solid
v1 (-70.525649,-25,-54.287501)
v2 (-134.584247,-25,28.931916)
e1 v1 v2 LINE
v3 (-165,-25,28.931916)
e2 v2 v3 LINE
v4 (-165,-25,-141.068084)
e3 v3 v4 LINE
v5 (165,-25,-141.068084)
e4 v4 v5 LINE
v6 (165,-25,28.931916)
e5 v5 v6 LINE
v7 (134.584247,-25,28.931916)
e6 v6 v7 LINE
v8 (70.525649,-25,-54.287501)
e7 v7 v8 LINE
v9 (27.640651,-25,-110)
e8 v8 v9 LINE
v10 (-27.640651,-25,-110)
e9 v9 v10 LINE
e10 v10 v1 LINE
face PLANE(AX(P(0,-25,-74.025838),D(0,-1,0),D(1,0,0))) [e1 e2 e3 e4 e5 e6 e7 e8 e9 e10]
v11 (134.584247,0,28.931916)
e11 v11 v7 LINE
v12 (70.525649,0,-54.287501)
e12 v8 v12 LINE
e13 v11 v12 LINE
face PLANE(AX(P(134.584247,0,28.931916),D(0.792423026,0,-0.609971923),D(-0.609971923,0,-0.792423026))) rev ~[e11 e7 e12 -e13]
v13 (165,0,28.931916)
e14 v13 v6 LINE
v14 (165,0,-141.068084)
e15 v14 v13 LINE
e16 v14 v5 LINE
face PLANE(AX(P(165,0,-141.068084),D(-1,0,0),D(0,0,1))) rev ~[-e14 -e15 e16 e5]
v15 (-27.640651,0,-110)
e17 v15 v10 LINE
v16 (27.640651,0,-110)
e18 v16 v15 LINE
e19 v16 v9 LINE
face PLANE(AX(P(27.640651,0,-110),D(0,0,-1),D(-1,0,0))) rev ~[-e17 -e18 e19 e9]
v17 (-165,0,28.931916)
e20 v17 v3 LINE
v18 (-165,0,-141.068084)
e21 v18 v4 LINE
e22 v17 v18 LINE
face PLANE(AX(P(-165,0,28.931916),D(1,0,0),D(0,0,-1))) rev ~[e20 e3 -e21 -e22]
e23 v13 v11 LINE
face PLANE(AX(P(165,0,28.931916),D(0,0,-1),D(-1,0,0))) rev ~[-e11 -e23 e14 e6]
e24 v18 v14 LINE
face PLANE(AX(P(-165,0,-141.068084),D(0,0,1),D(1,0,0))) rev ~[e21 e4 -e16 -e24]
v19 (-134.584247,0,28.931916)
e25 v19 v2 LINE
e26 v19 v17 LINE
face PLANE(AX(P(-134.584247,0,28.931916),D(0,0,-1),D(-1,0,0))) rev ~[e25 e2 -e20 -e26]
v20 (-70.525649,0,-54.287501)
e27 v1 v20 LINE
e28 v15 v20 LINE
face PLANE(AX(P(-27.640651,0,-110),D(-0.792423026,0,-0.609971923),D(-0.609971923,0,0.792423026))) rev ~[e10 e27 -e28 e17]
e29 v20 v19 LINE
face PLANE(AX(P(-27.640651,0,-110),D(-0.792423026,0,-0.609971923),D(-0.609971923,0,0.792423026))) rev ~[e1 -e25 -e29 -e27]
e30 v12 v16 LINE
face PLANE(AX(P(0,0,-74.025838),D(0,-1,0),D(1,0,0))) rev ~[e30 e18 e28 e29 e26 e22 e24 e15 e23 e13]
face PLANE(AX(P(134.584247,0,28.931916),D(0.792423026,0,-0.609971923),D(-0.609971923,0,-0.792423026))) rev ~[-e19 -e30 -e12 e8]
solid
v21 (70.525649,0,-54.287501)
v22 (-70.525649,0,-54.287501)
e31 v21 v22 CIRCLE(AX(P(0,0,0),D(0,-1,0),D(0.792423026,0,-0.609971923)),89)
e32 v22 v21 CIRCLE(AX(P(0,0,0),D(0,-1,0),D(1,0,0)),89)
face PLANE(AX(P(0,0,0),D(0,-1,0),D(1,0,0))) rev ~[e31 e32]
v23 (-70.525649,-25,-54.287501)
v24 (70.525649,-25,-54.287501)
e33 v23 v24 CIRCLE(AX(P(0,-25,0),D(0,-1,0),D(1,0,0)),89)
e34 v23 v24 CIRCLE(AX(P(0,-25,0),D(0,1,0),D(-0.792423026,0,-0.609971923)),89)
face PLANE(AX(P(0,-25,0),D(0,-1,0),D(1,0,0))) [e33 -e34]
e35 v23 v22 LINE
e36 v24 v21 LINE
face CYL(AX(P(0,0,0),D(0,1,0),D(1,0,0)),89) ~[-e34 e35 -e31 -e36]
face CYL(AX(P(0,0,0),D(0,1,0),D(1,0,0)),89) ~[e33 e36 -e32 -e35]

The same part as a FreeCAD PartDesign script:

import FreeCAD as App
import Part
import Sketcher

V = App.Vector
Q = App.Units.Quantity

doc = App.newDocument("Part")
body = doc.addObject("PartDesign::Body", "Body")
body.AllowCompound = True

# Sketch on XZ plane
sketch1 = body.newObject("Sketcher::SketchObject", "Sketch")
sketch1.AttachmentSupport = (doc.getObject("XZ_Plane"), [""])
sketch1.MapMode = "FlatFace"
sketch1.addGeometry(Part.LineSegment(V(134.584247, 28.931916, 0), V(27.640651, -110, 0)), False)
sketch1.addGeometry(Part.LineSegment(V(27.640651, -110, 0), V(-27.640651, -110, 0)), False)
sketch1.addGeometry(Part.LineSegment(V(-27.640651, -110, 0), V(-134.584247, 28.931916, 0)), False)
sketch1.addGeometry(Part.LineSegment(V(-134.584247, 28.931916, 0), V(-165, 28.931916, 0)), False)
sketch1.addGeometry(Part.LineSegment(V(-165, 28.931916, 0), V(-165, -141.068084, 0)), False)
sketch1.addGeometry(Part.LineSegment(V(-165, -141.068084, 0), V(165, -141.068084, 0)), False)
sketch1.addGeometry(Part.LineSegment(V(165, -141.068084, 0), V(165, 28.931916, 0)), False)
sketch1.addGeometry(Part.LineSegment(V(165, 28.931916, 0), V(134.584247, 28.931916, 0)), False)
sketch1.addConstraint(Sketcher.Constraint("Coincident", 0, 2, 1, 1))
sketch1.addConstraint(Sketcher.Constraint("Coincident", 1, 2, 2, 1))
sketch1.addConstraint(Sketcher.Constraint("Coincident", 2, 2, 3, 1))
sketch1.addConstraint(Sketcher.Constraint("Coincident", 3, 2, 4, 1))
sketch1.addConstraint(Sketcher.Constraint("Coincident", 4, 2, 5, 1))
sketch1.addConstraint(Sketcher.Constraint("Coincident", 5, 2, 6, 1))
sketch1.addConstraint(Sketcher.Constraint("Coincident", 6, 2, 7, 1))
sketch1.addConstraint(Sketcher.Constraint("Coincident", 7, 2, 0, 1))
sketch1.addConstraint(Sketcher.Constraint("Horizontal", 1))
sketch1.addConstraint(Sketcher.Constraint("Horizontal", 3))
sketch1.addConstraint(Sketcher.Constraint("Vertical", 4))
sketch1.addConstraint(Sketcher.Constraint("Horizontal", 5))
sketch1.addConstraint(Sketcher.Constraint("Vertical", 6))
sketch1.addConstraint(Sketcher.Constraint("Horizontal", 7))
sketch1.addConstraint(Sketcher.Constraint("Symmetric", 3, 2, 6, 2, -2))
sketch1.addConstraint(Sketcher.Constraint("Equal", 3, 7))
sketch1.addConstraint(Sketcher.Constraint("Equal", 0, 2))
sketch1.addConstraint(Sketcher.Constraint("DistanceX", 5, 1, 5, 2, Q("330 mm")))
sketch1.addConstraint(Sketcher.Constraint("DistanceY", 4, 2, 4, 1, Q("170 mm")))
sketch1.addConstraint(Sketcher.Constraint("DistanceY", 0, 2, -1, 1, Q("110 mm")))
sketch1.addConstraint(Sketcher.Constraint("DistanceX", 1, 2, 1, 1, Q("55.281302 mm")))
sketch1.addConstraint(Sketcher.Constraint("DistanceX", 2, 2, 0, 2, Q("162.224898 mm")))
sketch1.addConstraint(Sketcher.Constraint("Distance", 0, Q("175.32544 mm")))
pad1 = body.newObject("PartDesign::Pad", "Pad")
pad1.Profile = sketch1
pad1.Length = 25

# Sketch on XZ plane
sketch2 = body.newObject("Sketcher::SketchObject", "Sketch001")
sketch2.AttachmentSupport = (doc.getObject("XZ_Plane"), [""])
sketch2.MapMode = "FlatFace"
sketch2.addGeometry(Part.Circle(V(0, 0, 0), V(0, 0, 1), 89), False)
sketch2.addConstraint(Sketcher.Constraint("Coincident", 0, 3, -1, 1))
sketch2.addConstraint(Sketcher.Constraint("Diameter", 0, Q("178 mm")))
pad2 = body.newObject("PartDesign::Pad", "Pad001")
pad2.Profile = sketch2
pad2.Length = 25

doc.recompute()
